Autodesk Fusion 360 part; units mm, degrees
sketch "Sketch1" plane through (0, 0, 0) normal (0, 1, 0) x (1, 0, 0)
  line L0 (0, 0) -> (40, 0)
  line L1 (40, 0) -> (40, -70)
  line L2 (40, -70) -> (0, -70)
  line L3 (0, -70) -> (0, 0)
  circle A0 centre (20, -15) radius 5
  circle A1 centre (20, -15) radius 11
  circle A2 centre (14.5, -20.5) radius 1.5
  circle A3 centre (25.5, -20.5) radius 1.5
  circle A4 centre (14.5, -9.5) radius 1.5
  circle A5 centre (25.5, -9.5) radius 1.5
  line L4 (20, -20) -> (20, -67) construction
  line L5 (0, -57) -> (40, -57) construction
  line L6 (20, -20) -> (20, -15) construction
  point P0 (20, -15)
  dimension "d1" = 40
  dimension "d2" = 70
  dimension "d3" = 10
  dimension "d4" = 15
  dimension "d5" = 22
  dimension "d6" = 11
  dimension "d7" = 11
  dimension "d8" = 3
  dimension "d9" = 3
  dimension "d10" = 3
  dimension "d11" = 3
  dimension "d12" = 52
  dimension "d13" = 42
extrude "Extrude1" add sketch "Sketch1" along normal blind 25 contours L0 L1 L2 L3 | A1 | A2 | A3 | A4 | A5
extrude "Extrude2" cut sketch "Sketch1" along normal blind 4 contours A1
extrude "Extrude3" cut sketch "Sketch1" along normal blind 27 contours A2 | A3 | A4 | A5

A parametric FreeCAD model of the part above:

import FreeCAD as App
import Part
import Sketcher

doc = App.newDocument("Part")
params = doc.addObject("Spreadsheet::Sheet", "Params")
for row, (alias, value) in enumerate([
    ("sketch1_diameter", "10 mm"),
    ("sketch1_width", "40 mm"),
    ("sketch1_height", "70 mm"),
    ("pad1_length", "25 mm"),
    ("sketch2_diameter", "22 mm"),
    ("sketch2_diameter2", "3 mm"),
    ("sketch2_diameter3", "10 mm"),
    ("pocket1_length", "4 mm"),
    ("sketch3_diameter", "3 mm"),
    ("pocket2_length", "27 mm"),
], start=1):
    params.set(f"A{row}", alias)
    params.set(f"B{row}", "=" + value)
    params.setAlias(f"B{row}", alias)

body = doc.addObject("PartDesign::Body", "Body")

sketch1 = doc.addObject("Sketcher::SketchObject", "Sketch")
body.addObject(sketch1)
sketch1.AttachmentSupport = (doc.XZ_Plane, [""])
sketch1.MapMode = "FlatFace"
sketch1.addGeometry(Part.LineSegment(App.Vector(40, 0, 0), App.Vector(0, 0, 0)), False)
sketch1.addGeometry(Part.LineSegment(App.Vector(0, 0, 0), App.Vector(0, 70, 0)), False)
sketch1.addGeometry(Part.LineSegment(App.Vector(0, 70, 0), App.Vector(40, 70, 0)), False)
sketch1.addGeometry(Part.LineSegment(App.Vector(40, 70, 0), App.Vector(40, 0, 0)), False)
sketch1.addGeometry(Part.Circle(App.Vector(20, 15, 0), App.Vector(0, 0, 1), 5), False)
sketch1.addConstraint(Sketcher.Constraint("Coincident", 0, 2, 1, 1))
sketch1.addConstraint(Sketcher.Constraint("Coincident", 1, 2, 2, 1))
sketch1.addConstraint(Sketcher.Constraint("Coincident", 2, 2, 3, 1))
sketch1.addConstraint(Sketcher.Constraint("Coincident", 3, 2, 0, 1))
sketch1.addConstraint(Sketcher.Constraint("Horizontal", 0))
sketch1.addConstraint(Sketcher.Constraint("Vertical", 1))
sketch1.addConstraint(Sketcher.Constraint("Horizontal", 2))
sketch1.addConstraint(Sketcher.Constraint("Vertical", 3))
sketch1.addConstraint(Sketcher.Constraint("Coincident", 0, 2, -1, 1))
sketch1.addConstraint(Sketcher.Constraint("Diameter", 4, 10.0))
sketch1.addConstraint(Sketcher.Constraint("DistanceX", 0, 2, 0, 1, 40.0))
sketch1.addConstraint(Sketcher.Constraint("DistanceY", 1, 1, 1, 2, 70.0))
sketch1.addConstraint(Sketcher.Constraint("DistanceY", -1, 1, 4, 3, 15.0))
sketch1.addConstraint(Sketcher.Constraint("DistanceX", -1, 1, 4, 3, 20.0))
sketch1.setExpression("Constraints[9]", "Params.sketch1_diameter")
sketch1.setExpression("Constraints[10]", "Params.sketch1_width")
sketch1.setExpression("Constraints[11]", "Params.sketch1_height")
pad1 = doc.addObject("PartDesign::Pad", "Pad")
body.addObject(pad1)
pad1.Profile = sketch1
pad1.setExpression("Length", "Params.pad1_length")
pad1.Reversed = True

sketch2 = doc.addObject("Sketcher::SketchObject", "Sketch001")
body.addObject(sketch2)
sketch2.AttachmentSupport = (doc.XZ_Plane, [""])
sketch2.MapMode = "FlatFace"
sketch2.addGeometry(Part.Circle(App.Vector(20, 15, 0), App.Vector(0, 0, 1), 11), False)
sketch2.addGeometry(Part.Circle(App.Vector(14.5, 20.5, 0), App.Vector(0, 0, 1), 1.5), False)
sketch2.addGeometry(Part.Circle(App.Vector(14.5, 9.5, 0), App.Vector(0, 0, 1), 1.5), False)
sketch2.addGeometry(Part.Circle(App.Vector(25.5, 20.5, 0), App.Vector(0, 0, 1), 1.5), False)
sketch2.addGeometry(Part.Circle(App.Vector(20, 15, 0), App.Vector(0, 0, 1), 5), False)
sketch2.addGeometry(Part.Circle(App.Vector(25.5, 9.5, 0), App.Vector(0, 0, 1), 1.5), False)
sketch2.addConstraint(Sketcher.Constraint("Coincident", 4, 3, 0, 3))
sketch2.addConstraint(Sketcher.Constraint("Equal", 1, 2))
sketch2.addConstraint(Sketcher.Constraint("Equal", 2, 3))
sketch2.addConstraint(Sketcher.Constraint("Equal", 3, 5))
sketch2.addConstraint(Sketcher.Constraint("Horizontal", 1, 3, 3, 3))
sketch2.addConstraint(Sketcher.Constraint("Horizontal", 2, 3, 5, 3))
sketch2.addConstraint(Sketcher.Constraint("Vertical", 1, 3, 2, 3))
sketch2.addConstraint(Sketcher.Constraint("Vertical", 3, 3, 5, 3))
sketch2.addConstraint(Sketcher.Constraint("Diameter", 0, 22.0))
sketch2.addConstraint(Sketcher.Constraint("Diameter", 1, 3.0))
sketch2.addConstraint(Sketcher.Constraint("Diameter", 4, 10.0))
sketch2.addConstraint(Sketcher.Constraint("DistanceY", -1, 1, 0, 3, 15.0))
sketch2.addConstraint(Sketcher.Constraint("DistanceY", 2, 3, 1, 3, 11.0))
sketch2.addConstraint(Sketcher.Constraint("DistanceX", 1, 3, 3, 3, 11.0))
sketch2.addConstraint(Sketcher.Constraint("DistanceX", -1, 1, 0, 3, 20.0))
sketch2.addConstraint(Sketcher.Constraint("DistanceX", -1, 1, 1, 3, 14.5))
sketch2.addConstraint(Sketcher.Constraint("DistanceY", -1, 1, 1, 3, 20.5))
sketch2.setExpression("Constraints[8]", "Params.sketch2_diameter")
sketch2.setExpression("Constraints[9]", "Params.sketch2_diameter2")
sketch2.setExpression("Constraints[10]", "Params.sketch2_diameter3")
pocket1 = doc.addObject("PartDesign::Pocket", "Pocket")
body.addObject(pocket1)
pocket1.Profile = sketch2
pocket1.setExpression("Length", "Params.pocket1_length")

sketch3 = doc.addObject("Sketcher::SketchObject", "Sketch002")
body.addObject(sketch3)
sketch3.AttachmentSupport = (doc.XZ_Plane, [""])
sketch3.MapMode = "FlatFace"
sketch3.addGeometry(Part.Circle(App.Vector(14.5, 20.5, 0), App.Vector(0, 0, 1), 1.5), False)
sketch3.addGeometry(Part.Circle(App.Vector(25.5, 20.5, 0), App.Vector(0, 0, 1), 1.5), False)
sketch3.addGeometry(Part.Circle(App.Vector(14.5, 9.5, 0), App.Vector(0, 0, 1), 1.5), False)
sketch3.addGeometry(Part.Circle(App.Vector(25.5, 9.5, 0), App.Vector(0, 0, 1), 1.5), False)
sketch3.addConstraint(Sketcher.Constraint("Equal", 0, 1))
sketch3.addConstraint(Sketcher.Constraint("Equal", 1, 2))
sketch3.addConstraint(Sketcher.Constraint("Equal", 2, 3))
sketch3.addConstraint(Sketcher.Constraint("Horizontal", 0, 3, 1, 3))
sketch3.addConstraint(Sketcher.Constraint("Horizontal", 2, 3, 3, 3))
sketch3.addConstraint(Sketcher.Constraint("Vertical", 0, 3, 2, 3))
sketch3.addConstraint(Sketcher.Constraint("Vertical", 1, 3, 3, 3))
sketch3.addConstraint(Sketcher.Constraint("Diameter", 0, 3.0))
sketch3.addConstraint(Sketcher.Constraint("DistanceX", 0, 3, 1, 3, 11.0))
sketch3.addConstraint(Sketcher.Constraint("DistanceY", 2, 3, 0, 3, 11.0))
sketch3.addConstraint(Sketcher.Constraint("DistanceX", -1, 1, 0, 3, 14.5))
sketch3.addConstraint(Sketcher.Constraint("DistanceY", -1, 1, 0, 3, 20.5))
sketch3.setExpression("Constraints[7]", "Params.sketch3_diameter")
pocket2 = doc.addObject("PartDesign::Pocket", "Pocket001")
body.addObject(pocket2)
pocket2.Profile = sketch3
pocket2.setExpression("Length", "Params.pocket2_length")

doc.recompute()
